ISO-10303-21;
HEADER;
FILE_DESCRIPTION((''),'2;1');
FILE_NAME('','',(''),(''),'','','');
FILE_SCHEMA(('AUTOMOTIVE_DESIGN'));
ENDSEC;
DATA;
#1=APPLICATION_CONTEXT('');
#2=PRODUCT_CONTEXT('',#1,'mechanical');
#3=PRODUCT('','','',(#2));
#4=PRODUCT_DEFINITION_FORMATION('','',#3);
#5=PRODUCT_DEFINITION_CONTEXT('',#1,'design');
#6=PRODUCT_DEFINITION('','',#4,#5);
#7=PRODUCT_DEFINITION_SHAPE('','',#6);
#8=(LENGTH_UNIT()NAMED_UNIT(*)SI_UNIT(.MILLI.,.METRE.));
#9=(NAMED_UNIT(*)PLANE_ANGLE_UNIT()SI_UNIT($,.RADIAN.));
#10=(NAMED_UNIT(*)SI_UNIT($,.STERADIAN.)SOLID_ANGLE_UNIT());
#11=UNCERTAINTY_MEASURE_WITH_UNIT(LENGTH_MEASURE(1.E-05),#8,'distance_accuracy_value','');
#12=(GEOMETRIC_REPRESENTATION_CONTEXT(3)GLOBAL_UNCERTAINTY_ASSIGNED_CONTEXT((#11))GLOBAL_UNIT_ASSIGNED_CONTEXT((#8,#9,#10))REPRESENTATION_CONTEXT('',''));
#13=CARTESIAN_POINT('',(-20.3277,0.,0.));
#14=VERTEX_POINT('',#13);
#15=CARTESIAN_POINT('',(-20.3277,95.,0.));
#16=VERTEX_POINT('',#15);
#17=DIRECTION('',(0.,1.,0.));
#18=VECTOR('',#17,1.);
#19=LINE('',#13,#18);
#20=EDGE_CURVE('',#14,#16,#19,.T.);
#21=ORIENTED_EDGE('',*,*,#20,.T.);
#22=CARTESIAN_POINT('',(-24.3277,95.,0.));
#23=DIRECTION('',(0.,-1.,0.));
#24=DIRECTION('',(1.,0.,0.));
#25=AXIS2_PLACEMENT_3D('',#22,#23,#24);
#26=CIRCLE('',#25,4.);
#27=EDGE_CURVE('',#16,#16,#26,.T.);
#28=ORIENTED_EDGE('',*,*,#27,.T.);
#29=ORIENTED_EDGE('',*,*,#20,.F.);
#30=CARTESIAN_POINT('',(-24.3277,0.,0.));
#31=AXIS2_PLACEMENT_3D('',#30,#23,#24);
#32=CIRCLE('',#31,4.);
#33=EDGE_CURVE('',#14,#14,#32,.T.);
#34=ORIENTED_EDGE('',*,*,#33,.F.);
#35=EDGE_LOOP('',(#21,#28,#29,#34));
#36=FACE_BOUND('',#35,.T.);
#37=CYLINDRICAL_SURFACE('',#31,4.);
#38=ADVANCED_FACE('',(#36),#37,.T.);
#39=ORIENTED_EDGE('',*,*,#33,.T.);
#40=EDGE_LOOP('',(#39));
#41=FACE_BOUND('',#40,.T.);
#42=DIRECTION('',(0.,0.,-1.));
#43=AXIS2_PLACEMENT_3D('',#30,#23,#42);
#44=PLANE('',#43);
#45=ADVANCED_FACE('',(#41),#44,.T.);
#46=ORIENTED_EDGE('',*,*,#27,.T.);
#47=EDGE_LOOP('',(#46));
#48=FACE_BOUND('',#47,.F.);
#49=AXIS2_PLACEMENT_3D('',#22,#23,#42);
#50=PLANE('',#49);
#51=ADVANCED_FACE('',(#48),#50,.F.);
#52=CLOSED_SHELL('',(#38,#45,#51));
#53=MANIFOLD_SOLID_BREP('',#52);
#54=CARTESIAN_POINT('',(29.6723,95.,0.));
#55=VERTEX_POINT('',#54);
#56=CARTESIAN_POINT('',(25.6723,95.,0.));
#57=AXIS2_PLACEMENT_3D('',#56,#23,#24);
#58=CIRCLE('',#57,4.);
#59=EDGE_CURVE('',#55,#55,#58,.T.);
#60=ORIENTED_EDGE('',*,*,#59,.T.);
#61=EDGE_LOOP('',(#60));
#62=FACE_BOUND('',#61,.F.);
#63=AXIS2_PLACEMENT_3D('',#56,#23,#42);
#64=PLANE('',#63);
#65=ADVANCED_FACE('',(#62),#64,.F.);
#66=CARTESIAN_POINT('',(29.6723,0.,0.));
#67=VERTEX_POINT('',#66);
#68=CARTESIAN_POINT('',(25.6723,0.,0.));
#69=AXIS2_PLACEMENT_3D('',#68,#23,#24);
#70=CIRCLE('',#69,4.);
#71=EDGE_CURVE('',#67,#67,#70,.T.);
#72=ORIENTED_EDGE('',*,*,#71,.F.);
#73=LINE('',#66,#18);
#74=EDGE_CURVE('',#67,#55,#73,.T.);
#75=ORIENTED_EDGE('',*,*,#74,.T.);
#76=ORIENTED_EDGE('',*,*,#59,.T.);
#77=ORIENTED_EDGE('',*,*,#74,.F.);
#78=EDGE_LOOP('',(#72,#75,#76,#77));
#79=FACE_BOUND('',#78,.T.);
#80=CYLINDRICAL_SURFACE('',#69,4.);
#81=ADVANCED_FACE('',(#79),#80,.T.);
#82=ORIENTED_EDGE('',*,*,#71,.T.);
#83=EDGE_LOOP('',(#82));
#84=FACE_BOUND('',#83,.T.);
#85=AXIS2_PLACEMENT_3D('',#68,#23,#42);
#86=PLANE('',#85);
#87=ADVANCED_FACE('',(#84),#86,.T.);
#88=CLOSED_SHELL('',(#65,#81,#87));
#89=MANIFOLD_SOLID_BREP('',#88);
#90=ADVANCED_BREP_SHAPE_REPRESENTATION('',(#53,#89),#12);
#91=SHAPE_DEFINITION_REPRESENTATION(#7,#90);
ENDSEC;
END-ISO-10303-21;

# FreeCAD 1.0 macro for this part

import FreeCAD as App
import Part
import Sketcher
from FreeCAD import Vector
Q = App.Units.Quantity

doc = App.newDocument("Part")
body = doc.addObject("PartDesign::Body", "Body")
body.AllowCompound = True

# Sketch on XZ plane
sketch1 = body.newObject("Sketcher::SketchObject", "Sketch")
sketch1.AttachmentSupport = (doc.getObject("XZ_Plane"), [""])
sketch1.MapMode = "FlatFace"
sketch1.addGeometry([
    Part.Circle(Vector(-24.3277, 0, 0), Vector(0, 0, 1), 4),
    Part.Circle(Vector(25.6723, 0, 0), Vector(0, 0, 1), 4),
], False)
sketch1.addConstraint([
    Sketcher.Constraint("Equal", 0, 1),
    Sketcher.Constraint("PointOnObject", 0, 3, -1),
    Sketcher.Constraint("PointOnObject", 1, 3, -1),
    Sketcher.Constraint("Diameter", 0, Q("8 mm")),
    Sketcher.Constraint("DistanceX", 0, 3, 1, 3, Q("50 mm")),
    Sketcher.Constraint("DistanceX", 0, 3, -1, 1, Q("24.3277 mm")),
])
pad1 = body.newObject("PartDesign::Pad", "Pad")
pad1.Profile = sketch1
pad1.Length = 95
pad1.Reversed = True

doc.recompute()
